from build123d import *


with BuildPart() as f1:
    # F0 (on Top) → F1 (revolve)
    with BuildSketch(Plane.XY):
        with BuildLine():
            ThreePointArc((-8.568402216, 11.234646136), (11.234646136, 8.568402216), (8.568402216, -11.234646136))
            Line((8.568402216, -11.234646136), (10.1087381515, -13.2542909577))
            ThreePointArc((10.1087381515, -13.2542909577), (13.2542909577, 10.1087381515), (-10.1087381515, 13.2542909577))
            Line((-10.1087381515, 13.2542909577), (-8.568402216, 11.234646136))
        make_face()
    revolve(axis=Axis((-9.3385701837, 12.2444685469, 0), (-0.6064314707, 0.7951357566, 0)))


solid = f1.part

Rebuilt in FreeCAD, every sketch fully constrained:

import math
import FreeCAD as App
import Part
import Sketcher
Q = App.Units.Quantity

doc = App.newDocument("Part")
body = doc.addObject("PartDesign::Body", "Body")

# Sketch on XY plane
sketch1 = body.newObject("Sketcher::SketchObject", "Sketch")
sketch1.AttachmentSupport = (doc.getObject("XY_Plane"), [""])
sketch1.MapMode = "FlatFace"
sketch1.addGeometry([
    Part.ArcOfCircle(Part.Circle(App.Vector(0, 0, 0), App.Vector(0, 0, 1), 14.1), math.radians(-53), math.radians(127)),
    Part.LineSegment(App.Vector(8.6, -11.2, 0), App.Vector(10.1, -13.3, 0)),
    Part.ArcOfCircle(Part.Circle(App.Vector(0, 0, 0), App.Vector(0, 0, 1), 16.7), math.radians(-53), math.radians(127)),
    Part.LineSegment(App.Vector(-10.1, 13.3, 0), App.Vector(-8.6, 11.2, 0)),
], False)
sketch1.addGeometry(Part.LineSegment(App.Vector(10.1, -13.3, 0), App.Vector(-10.1, 13.3, 0)), True)  # axis
sketch1.addConstraint([
    Sketcher.Constraint("Coincident", 0, 1, 1, 1),
    Sketcher.Constraint("Coincident", 1, 2, 2, 1),
    Sketcher.Constraint("Coincident", 2, 2, 3, 1),
    Sketcher.Constraint("Coincident", 3, 2, 0, 2),
    Sketcher.Constraint("Coincident", 0, 3, -1, 1),
    Sketcher.Constraint("Coincident", 2, 3, -1, 1),
    Sketcher.Constraint("Coincident", 4, 1, 1, 2),
    Sketcher.Constraint("Coincident", 4, 2, 2, 2),
    Sketcher.Constraint("Parallel", 1, 3),
    Sketcher.Constraint("Parallel", 3, 4),
    Sketcher.Constraint("Distance", 1, Q("0.1 in")),
    Sketcher.Constraint("Radius", 0, Q("14.129218 mm")),
    Sketcher.Constraint("DistanceX", -1, 1, 1, 2, Q("10.108738 mm")),
    Sketcher.Constraint("DistanceX", 2, 2, -1, 1, Q("10.108738 mm")),
])
revolution = body.newObject("PartDesign::Revolution", "Revolution")
revolution.Profile = sketch1
revolution.ReferenceAxis = (sketch1, ["Axis0"])
revolution.Angle = 360

doc.recompute()
